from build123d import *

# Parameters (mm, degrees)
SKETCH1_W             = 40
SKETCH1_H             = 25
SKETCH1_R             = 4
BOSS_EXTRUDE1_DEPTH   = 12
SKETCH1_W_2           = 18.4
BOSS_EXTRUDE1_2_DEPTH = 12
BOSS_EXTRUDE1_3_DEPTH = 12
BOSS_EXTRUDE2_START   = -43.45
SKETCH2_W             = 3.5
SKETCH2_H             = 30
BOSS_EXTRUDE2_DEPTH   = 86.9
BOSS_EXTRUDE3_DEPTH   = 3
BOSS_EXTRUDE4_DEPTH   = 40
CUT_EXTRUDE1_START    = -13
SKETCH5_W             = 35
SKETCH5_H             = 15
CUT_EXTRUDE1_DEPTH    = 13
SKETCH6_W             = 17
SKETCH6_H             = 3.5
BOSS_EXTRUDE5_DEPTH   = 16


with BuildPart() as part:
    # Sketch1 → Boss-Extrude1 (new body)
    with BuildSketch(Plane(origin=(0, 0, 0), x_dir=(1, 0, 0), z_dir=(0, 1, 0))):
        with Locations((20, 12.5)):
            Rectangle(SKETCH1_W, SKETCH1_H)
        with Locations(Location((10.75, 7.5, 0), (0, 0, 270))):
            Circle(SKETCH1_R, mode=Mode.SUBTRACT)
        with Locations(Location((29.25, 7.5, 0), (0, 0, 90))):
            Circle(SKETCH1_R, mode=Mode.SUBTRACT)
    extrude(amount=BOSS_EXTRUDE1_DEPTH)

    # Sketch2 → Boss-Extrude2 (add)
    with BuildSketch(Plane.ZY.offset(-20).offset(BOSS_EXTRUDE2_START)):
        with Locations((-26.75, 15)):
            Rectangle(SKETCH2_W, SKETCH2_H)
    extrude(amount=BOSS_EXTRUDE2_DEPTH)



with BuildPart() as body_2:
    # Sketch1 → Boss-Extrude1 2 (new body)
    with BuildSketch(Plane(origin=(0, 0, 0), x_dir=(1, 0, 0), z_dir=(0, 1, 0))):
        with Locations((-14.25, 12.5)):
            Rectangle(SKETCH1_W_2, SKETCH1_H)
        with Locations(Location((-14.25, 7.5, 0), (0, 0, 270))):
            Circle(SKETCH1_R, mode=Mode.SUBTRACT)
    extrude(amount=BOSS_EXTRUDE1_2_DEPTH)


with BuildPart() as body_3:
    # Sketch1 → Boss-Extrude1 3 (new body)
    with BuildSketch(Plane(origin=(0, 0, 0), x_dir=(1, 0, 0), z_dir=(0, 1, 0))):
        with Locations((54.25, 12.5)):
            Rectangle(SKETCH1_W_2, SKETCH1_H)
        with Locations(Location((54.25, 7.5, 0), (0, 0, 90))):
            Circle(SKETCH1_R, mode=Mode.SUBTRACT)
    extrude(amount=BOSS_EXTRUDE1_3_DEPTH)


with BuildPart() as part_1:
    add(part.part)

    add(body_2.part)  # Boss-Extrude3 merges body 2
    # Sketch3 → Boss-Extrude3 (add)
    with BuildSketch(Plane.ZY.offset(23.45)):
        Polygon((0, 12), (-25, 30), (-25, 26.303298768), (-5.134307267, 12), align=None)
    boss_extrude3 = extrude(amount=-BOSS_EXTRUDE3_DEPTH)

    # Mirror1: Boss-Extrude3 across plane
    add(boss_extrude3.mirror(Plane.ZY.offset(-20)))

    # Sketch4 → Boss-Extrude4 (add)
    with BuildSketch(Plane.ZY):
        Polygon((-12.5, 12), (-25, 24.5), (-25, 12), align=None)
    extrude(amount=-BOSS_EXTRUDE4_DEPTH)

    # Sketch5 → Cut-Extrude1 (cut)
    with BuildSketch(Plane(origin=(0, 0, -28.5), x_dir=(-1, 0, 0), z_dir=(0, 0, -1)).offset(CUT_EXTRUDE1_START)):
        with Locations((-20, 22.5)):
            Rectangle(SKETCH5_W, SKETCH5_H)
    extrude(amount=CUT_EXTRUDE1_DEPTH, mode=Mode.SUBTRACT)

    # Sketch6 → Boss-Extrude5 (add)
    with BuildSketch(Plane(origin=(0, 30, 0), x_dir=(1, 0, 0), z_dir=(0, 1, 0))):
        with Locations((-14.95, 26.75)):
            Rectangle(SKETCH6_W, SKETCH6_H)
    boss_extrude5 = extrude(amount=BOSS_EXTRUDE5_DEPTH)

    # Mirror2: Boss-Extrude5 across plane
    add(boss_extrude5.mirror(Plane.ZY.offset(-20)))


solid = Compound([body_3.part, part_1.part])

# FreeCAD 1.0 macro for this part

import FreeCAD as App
import Part
import Sketcher

V = App.Vector

doc = App.newDocument("Part")
body = doc.addObject("PartDesign::Body", "Body")

# Sketch on XZ plane
sketch1 = body.newObject("Sketcher::SketchObject", "Sketch")
sketch1.AttachmentSupport = (doc.getObject("XZ_Plane"), [""])
sketch1.MapMode = "FlatFace"
sketch1.addGeometry(Part.LineSegment(V(0, -25, 0), V(0, 0, 0)), False)
sketch1.addGeometry(Part.LineSegment(V(0, 0, 0), V(40, 0, 0)), False)
sketch1.addGeometry(Part.LineSegment(V(40, 0, 0), V(40, -25, 0)), False)
sketch1.addGeometry(Part.LineSegment(V(40, -25, 0), V(0, -25, 0)), False)
sketch1.addGeometry(Part.Circle(V(10.8, -7.5, 0), V(0, 0, 1), 4), False)
sketch1.addGeometry(Part.Circle(V(29.2, -7.5, 0), V(0, 0, 1), 4), False)
sketch1.addConstraint(Sketcher.Constraint("Coincident", 0, 2, 1, 1))
sketch1.addConstraint(Sketcher.Constraint("Coincident", 1, 2, 2, 1))
sketch1.addConstraint(Sketcher.Constraint("Coincident", 2, 2, 3, 1))
sketch1.addConstraint(Sketcher.Constraint("Coincident", 3, 2, 0, 1))
sketch1.addConstraint(Sketcher.Constraint("Vertical", 0))
sketch1.addConstraint(Sketcher.Constraint("Horizontal", 1))
sketch1.addConstraint(Sketcher.Constraint("Vertical", 2))
sketch1.addConstraint(Sketcher.Constraint("Horizontal", 3))
sketch1.addConstraint(Sketcher.Constraint("Coincident", 0, 2, -1, 1))
sketch1.addConstraint(Sketcher.Constraint("Equal", 4, 5))
sketch1.addConstraint(Sketcher.Constraint("Horizontal", 4, 3, 5, 3))
sketch1.addConstraint(Sketcher.Constraint("Diameter", 4, 8.0))
sketch1.addConstraint(Sketcher.Constraint("DistanceX", 1, 1, 1, 2, 40.0))
sketch1.addConstraint(Sketcher.Constraint("DistanceY", 0, 1, 0, 2, 25.0))
sketch1.addConstraint(Sketcher.Constraint("DistanceY", 4, 3, -1, 1, 7.5))
sketch1.addConstraint(Sketcher.Constraint("DistanceX", 4, 3, 5, 3, 18.5))
sketch1.addConstraint(Sketcher.Constraint("DistanceX", -1, 1, 4, 3, 10.75))
pad1 = body.newObject("PartDesign::Pad", "Pad")
pad1.Profile = sketch1
pad1.Length = 12
pad1.Reversed = True

# Sketch on YZ plane
sketch2 = body.newObject("Sketcher::SketchObject", "Sketch001")
sketch2.AttachmentSupport = (doc.getObject("YZ_Plane"), [""])
sketch2.MapMode = "FlatFace"
sketch2.AttachmentOffset = App.Placement(V(0, 0, 63.45), App.Rotation())
sketch2.addGeometry(Part.LineSegment(V(30, -28.5, 0), V(0, -28.5, 0)), False)
sketch2.addGeometry(Part.LineSegment(V(0, -28.5, 0), V(0, -25, 0)), False)
sketch2.addGeometry(Part.LineSegment(V(0, -25, 0), V(30, -25, 0)), False)
sketch2.addGeometry(Part.LineSegment(V(30, -25, 0), V(30, -28.5, 0)), False)
sketch2.addConstraint(Sketcher.Constraint("Coincident", 0, 2, 1, 1))
sketch2.addConstraint(Sketcher.Constraint("Coincident", 1, 2, 2, 1))
sketch2.addConstraint(Sketcher.Constraint("Coincident", 2, 2, 3, 1))
sketch2.addConstraint(Sketcher.Constraint("Coincident", 3, 2, 0, 1))
sketch2.addConstraint(Sketcher.Constraint("Horizontal", 0))
sketch2.addConstraint(Sketcher.Constraint("Vertical", 1))
sketch2.addConstraint(Sketcher.Constraint("Horizontal", 2))
sketch2.addConstraint(Sketcher.Constraint("Vertical", 3))
sketch2.addConstraint(Sketcher.Constraint("PointOnObject", 0, 2, -2))
sketch2.addConstraint(Sketcher.Constraint("DistanceX", 0, 2, 0, 1, 30.0))
sketch2.addConstraint(Sketcher.Constraint("DistanceY", 1, 1, 1, 2, 3.5))
sketch2.addConstraint(Sketcher.Constraint("DistanceY", 1, 2, -1, 1, 25.0))
pad2 = body.newObject("PartDesign::Pad", "Pad001")
pad2.Profile = sketch2
pad2.Length = 86.9
pad2.Reversed = True
body2 = doc.addObject("PartDesign::Body", "Body001")

# Sketch on XZ plane
sketch3 = body2.newObject("Sketcher::SketchObject", "Sketch002")
sketch3.AttachmentSupport = (doc.getObject("XZ_Plane001"), [""])
sketch3.MapMode = "FlatFace"
sketch3.addGeometry(Part.LineSegment(V(-23.4, -25, 0), V(-23.4, 0, 0)), False)
sketch3.addGeometry(Part.LineSegment(V(-23.4, 0, 0), V(-5, 0, 0)), False)
sketch3.addGeometry(Part.LineSegment(V(-5, 0, 0), V(-5, -25, 0)), False)
sketch3.addGeometry(Part.LineSegment(V(-5, -25, 0), V(-23.4, -25, 0)), False)
sketch3.addGeometry(Part.Circle(V(-14.2, -7.5, 0), V(0, 0, 1), 4), False)
sketch3.addConstraint(Sketcher.Constraint("Coincident", 0, 2, 1, 1))
sketch3.addConstraint(Sketcher.Constraint("Coincident", 1, 2, 2, 1))
sketch3.addConstraint(Sketcher.Constraint("Coincident", 2, 2, 3, 1))
sketch3.addConstraint(Sketcher.Constraint("Coincident", 3, 2, 0, 1))
sketch3.addConstraint(Sketcher.Constraint("Vertical", 0))
sketch3.addConstraint(Sketcher.Constraint("Horizontal", 1))
sketch3.addConstraint(Sketcher.Constraint("Vertical", 2))
sketch3.addConstraint(Sketcher.Constraint("Horizontal", 3))
sketch3.addConstraint(Sketcher.Constraint("PointOnObject", 0, 2, -1))
sketch3.addConstraint(Sketcher.Constraint("Diameter", 4, 8.0))
sketch3.addConstraint(Sketcher.Constraint("DistanceY", 0, 1, 0, 2, 25.0))
sketch3.addConstraint(Sketcher.Constraint("DistanceX", 1, 1, 1, 2, 18.4))
sketch3.addConstraint(Sketcher.Constraint("DistanceY", 4, 3, -1, 1, 7.5))
sketch3.addConstraint(Sketcher.Constraint("DistanceX", 0, 2, 4, 3, 9.2))
sketch3.addConstraint(Sketcher.Constraint("DistanceX", 4, 3, -1, 1, 14.25))
pad3 = body2.newObject("PartDesign::Pad", "Pad002")
pad3.Profile = sketch3
pad3.Length = 12
pad3.Reversed = True
body3 = doc.addObject("PartDesign::Body", "Body002")

# Sketch on XZ plane
sketch4 = body3.newObject("Sketcher::SketchObject", "Sketch003")
sketch4.AttachmentSupport = (doc.getObject("XZ_Plane002"), [""])
sketch4.MapMode = "FlatFace"
sketch4.addGeometry(Part.LineSegment(V(45, -25, 0), V(45, 0, 0)), False)
sketch4.addGeometry(Part.LineSegment(V(45, 0, 0), V(63.5, 0, 0)), False)
sketch4.addGeometry(Part.LineSegment(V(63.5, 0, 0), V(63.5, -25, 0)), False)
sketch4.addGeometry(Part.LineSegment(V(63.5, -25, 0), V(45, -25, 0)), False)
sketch4.addGeometry(Part.Circle(V(54.2, -7.5, 0), V(0, 0, 1), 4), False)
sketch4.addConstraint(Sketcher.Constraint("Coincident", 0, 2, 1, 1))
sketch4.addConstraint(Sketcher.Constraint("Coincident", 1, 2, 2, 1))
sketch4.addConstraint(Sketcher.Constraint("Coincident", 2, 2, 3, 1))
sketch4.addConstraint(Sketcher.Constraint("Coincident", 3, 2, 0, 1))
sketch4.addConstraint(Sketcher.Constraint("Vertical", 0))
sketch4.addConstraint(Sketcher.Constraint("Horizontal", 1))
sketch4.addConstraint(Sketcher.Constraint("Vertical", 2))
sketch4.addConstraint(Sketcher.Constraint("Horizontal", 3))
sketch4.addConstraint(Sketcher.Constraint("PointOnObject", 0, 2, -1))
sketch4.addConstraint(Sketcher.Constraint("Diameter", 4, 8.0))
sketch4.addConstraint(Sketcher.Constraint("DistanceY", 0, 1, 0, 2, 25.0))
sketch4.addConstraint(Sketcher.Constraint("DistanceX", 1, 1, 1, 2, 18.4))
sketch4.addConstraint(Sketcher.Constraint("DistanceY", 4, 3, -1, 1, 7.5))
sketch4.addConstraint(Sketcher.Constraint("DistanceX", 0, 2, 4, 3, 9.2))
sketch4.addConstraint(Sketcher.Constraint("DistanceX", -1, 1, 4, 3, 54.25))
pad4 = body3.newObject("PartDesign::Pad", "Pad003")
pad4.Profile = sketch4
pad4.Length = 12
pad4.Reversed = True
doc.recompute()

boolean = body.newObject("PartDesign::Boolean", "Boolean")
boolean.Type = "Fuse"
boolean.addObjects([body2])

# Sketch on YZ plane
sketch5 = body.newObject("Sketcher::SketchObject", "Sketch004")
sketch5.AttachmentSupport = (doc.getObject("YZ_Plane"), [""])
sketch5.MapMode = "FlatFace"
sketch5.AttachmentOffset = App.Placement(V(0, 0, -23.45), App.Rotation())
sketch5.addGeometry(Part.LineSegment(V(12, 0, 0), V(30, -25, 0)), False)
sketch5.addGeometry(Part.LineSegment(V(30, -25, 0), V(26.3, -25, 0)), False)
sketch5.addGeometry(Part.LineSegment(V(26.3, -25, 0), V(12, -5.1, 0)), False)
sketch5.addGeometry(Part.LineSegment(V(12, -5.1, 0), V(12, 0, 0)), False)
sketch5.addConstraint(Sketcher.Constraint("Coincident", 0, 2, 1, 1))
sketch5.addConstraint(Sketcher.Constraint("Coincident", 1, 2, 2, 1))
sketch5.addConstraint(Sketcher.Constraint("Coincident", 2, 2, 3, 1))
sketch5.addConstraint(Sketcher.Constraint("Coincident", 3, 2, 0, 1))
sketch5.addConstraint(Sketcher.Constraint("Horizontal", 1))
sketch5.addConstraint(Sketcher.Constraint("Vertical", 3))
sketch5.addConstraint(Sketcher.Constraint("PointOnObject", 3, 2, -1))
sketch5.addConstraint(Sketcher.Constraint("Parallel", 0, 2))
sketch5.addConstraint(Sketcher.Constraint("DistanceX", -1, 1, 0, 2, 30.0))
sketch5.addConstraint(Sketcher.Constraint("DistanceY", 0, 2, -1, 1, 25.0))
sketch5.addConstraint(Sketcher.Constraint("DistanceX", -1, 1, 2, 2, 12.0))
sketch5.addConstraint(Sketcher.Constraint("DistanceX", 1, 2, 1, 1, 3.696701))
pad5 = body.newObject("PartDesign::Pad", "Pad004")
pad5.Profile = sketch5
pad5.Length = 3
doc.recompute()

datumplane = body.newObject("PartDesign::Plane", "DatumPlane")
datumplane.AttachmentSupport = (doc.getObject("YZ_Plane"), [""])
datumplane.MapMode = "FlatFace"
datumplane.AttachmentOffset = App.Placement(V(0, 0, 20), App.Rotation())
mirrored = body.newObject("PartDesign::Mirrored", "Mirrored")
mirrored.Originals = [pad5]
mirrored.MirrorPlane = (datumplane, [""])
body.Tip = mirrored

# Sketch on YZ plane
sketch6 = body.newObject("Sketcher::SketchObject", "Sketch005")
sketch6.AttachmentSupport = (doc.getObject("YZ_Plane"), [""])
sketch6.MapMode = "FlatFace"
sketch6.addGeometry(Part.LineSegment(V(12, -12, 0), V(24, -25, 0)), False)
sketch6.addGeometry(Part.LineSegment(V(24, -25, 0), V(12, -25, 0)), False)
sketch6.addGeometry(Part.LineSegment(V(12, -25, 0), V(12, -12, 0)), False)
sketch6.addConstraint(Sketcher.Constraint("Coincident", 0, 2, 1, 1))
sketch6.addConstraint(Sketcher.Constraint("Coincident", 1, 2, 2, 1))
sketch6.addConstraint(Sketcher.Constraint("Coincident", 2, 2, 0, 1))
sketch6.addConstraint(Sketcher.Constraint("Horizontal", 1))
sketch6.addConstraint(Sketcher.Constraint("Vertical", 2))
sketch6.addConstraint(Sketcher.Constraint("Equal", 1, 2))
sketch6.addConstraint(Sketcher.Constraint("DistanceX", 1, 2, 1, 1, 12.5))
sketch6.addConstraint(Sketcher.Constraint("DistanceY", 0, 2, -1, 1, 25.0))
sketch6.addConstraint(Sketcher.Constraint("DistanceX", -1, 1, 1, 2, 12.0))
pad6 = body.newObject("PartDesign::Pad", "Pad005")
pad6.Profile = sketch6
pad6.Length = 40

# Sketch on XY plane
sketch7 = body.newObject("Sketcher::SketchObject", "Sketch006")
sketch7.AttachmentSupport = (doc.getObject("XY_Plane"), [""])
sketch7.MapMode = "FlatFace"
sketch7.AttachmentOffset = App.Placement(V(0, 0, -15.5), App.Rotation())
sketch7.addGeometry(Part.LineSegment(V(38, 30, 0), V(38, 15, 0)), False)
sketch7.addGeometry(Part.LineSegment(V(38, 15, 0), V(2, 15, 0)), False)
sketch7.addGeometry(Part.LineSegment(V(2, 15, 0), V(2, 30, 0)), False)
sketch7.addGeometry(Part.LineSegment(V(2, 30, 0), V(38, 30, 0)), False)
sketch7.addConstraint(Sketcher.Constraint("Coincident", 0, 2, 1, 1))
sketch7.addConstraint(Sketcher.Constraint("Coincident", 1, 2, 2, 1))
sketch7.addConstraint(Sketcher.Constraint("Coincident", 2, 2, 3, 1))
sketch7.addConstraint(Sketcher.Constraint("Coincident", 3, 2, 0, 1))
sketch7.addConstraint(Sketcher.Constraint("Vertical", 0))
sketch7.addConstraint(Sketcher.Constraint("Horizontal", 1))
sketch7.addConstraint(Sketcher.Constraint("Vertical", 2))
sketch7.addConstraint(Sketcher.Constraint("Horizontal", 3))
sketch7.addConstraint(Sketcher.Constraint("DistanceX", 1, 2, 1, 1, 35.0))
sketch7.addConstraint(Sketcher.Constraint("DistanceY", 0, 2, 0, 1, 15.0))
sketch7.addConstraint(Sketcher.Constraint("DistanceY", -1, 1, 0, 2, 15.0))
sketch7.addConstraint(Sketcher.Constraint("DistanceX", -1, 1, 0, 2, 37.5))
pocket1 = body.newObject("PartDesign::Pocket", "Pocket")
pocket1.Profile = sketch7
pocket1.Length = 13

# Sketch on XZ plane
sketch8 = body.newObject("Sketcher::SketchObject", "Sketch007")
sketch8.AttachmentSupport = (doc.getObject("XZ_Plane"), [""])
sketch8.MapMode = "FlatFace"
sketch8.AttachmentOffset = App.Placement(V(0, 0, -30), App.Rotation())
sketch8.addGeometry(Part.LineSegment(V(-23.4, -28.5, 0), V(-23.4, -25, 0)), False)
sketch8.addGeometry(Part.LineSegment(V(-23.4, -25, 0), V(-6.5, -25, 0)), False)
sketch8.addGeometry(Part.LineSegment(V(-6.5, -25, 0), V(-6.5, -28.5, 0)), False)
sketch8.addGeometry(Part.LineSegment(V(-6.5, -28.5, 0), V(-23.4, -28.5, 0)), False)
sketch8.addConstraint(Sketcher.Constraint("Coincident", 0, 2, 1, 1))
sketch8.addConstraint(Sketcher.Constraint("Coincident", 1, 2, 2, 1))
sketch8.addConstraint(Sketcher.Constraint("Coincident", 2, 2, 3, 1))
sketch8.addConstraint(Sketcher.Constraint("Coincident", 3, 2, 0, 1))
sketch8.addConstraint(Sketcher.Constraint("Vertical", 0))
sketch8.addConstraint(Sketcher.Constraint("Horizontal", 1))
sketch8.addConstraint(Sketcher.Constraint("Vertical", 2))
sketch8.addConstraint(Sketcher.Constraint("Horizontal", 3))
sketch8.addConstraint(Sketcher.Constraint("DistanceX", 1, 1, 1, 2, 17.0))
sketch8.addConstraint(Sketcher.Constraint("DistanceY", 0, 1, 0, 2, 3.5))
sketch8.addConstraint(Sketcher.Constraint("DistanceY", 0, 2, -1, 1, 25.0))
sketch8.addConstraint(Sketcher.Constraint("DistanceX", 0, 2, -1, 1, 23.45))
pad7 = body.newObject("PartDesign::Pad", "Pad006")
pad7.Profile = sketch8
pad7.Length = 16
pad7.Reversed = True
doc.recompute()

datumplane2 = body.newObject("PartDesign::Plane", "DatumPlane001")
datumplane2.AttachmentSupport = (doc.getObject("YZ_Plane"), [""])
datumplane2.MapMode = "FlatFace"
datumplane2.AttachmentOffset = App.Placement(V(0, 0, 20), App.Rotation())
mirrored2 = body.newObject("PartDesign::Mirrored", "Mirrored001")
mirrored2.Originals = [pad7]
mirrored2.MirrorPlane = (datumplane2, [""])
body.Tip = mirrored2

doc.recompute()
